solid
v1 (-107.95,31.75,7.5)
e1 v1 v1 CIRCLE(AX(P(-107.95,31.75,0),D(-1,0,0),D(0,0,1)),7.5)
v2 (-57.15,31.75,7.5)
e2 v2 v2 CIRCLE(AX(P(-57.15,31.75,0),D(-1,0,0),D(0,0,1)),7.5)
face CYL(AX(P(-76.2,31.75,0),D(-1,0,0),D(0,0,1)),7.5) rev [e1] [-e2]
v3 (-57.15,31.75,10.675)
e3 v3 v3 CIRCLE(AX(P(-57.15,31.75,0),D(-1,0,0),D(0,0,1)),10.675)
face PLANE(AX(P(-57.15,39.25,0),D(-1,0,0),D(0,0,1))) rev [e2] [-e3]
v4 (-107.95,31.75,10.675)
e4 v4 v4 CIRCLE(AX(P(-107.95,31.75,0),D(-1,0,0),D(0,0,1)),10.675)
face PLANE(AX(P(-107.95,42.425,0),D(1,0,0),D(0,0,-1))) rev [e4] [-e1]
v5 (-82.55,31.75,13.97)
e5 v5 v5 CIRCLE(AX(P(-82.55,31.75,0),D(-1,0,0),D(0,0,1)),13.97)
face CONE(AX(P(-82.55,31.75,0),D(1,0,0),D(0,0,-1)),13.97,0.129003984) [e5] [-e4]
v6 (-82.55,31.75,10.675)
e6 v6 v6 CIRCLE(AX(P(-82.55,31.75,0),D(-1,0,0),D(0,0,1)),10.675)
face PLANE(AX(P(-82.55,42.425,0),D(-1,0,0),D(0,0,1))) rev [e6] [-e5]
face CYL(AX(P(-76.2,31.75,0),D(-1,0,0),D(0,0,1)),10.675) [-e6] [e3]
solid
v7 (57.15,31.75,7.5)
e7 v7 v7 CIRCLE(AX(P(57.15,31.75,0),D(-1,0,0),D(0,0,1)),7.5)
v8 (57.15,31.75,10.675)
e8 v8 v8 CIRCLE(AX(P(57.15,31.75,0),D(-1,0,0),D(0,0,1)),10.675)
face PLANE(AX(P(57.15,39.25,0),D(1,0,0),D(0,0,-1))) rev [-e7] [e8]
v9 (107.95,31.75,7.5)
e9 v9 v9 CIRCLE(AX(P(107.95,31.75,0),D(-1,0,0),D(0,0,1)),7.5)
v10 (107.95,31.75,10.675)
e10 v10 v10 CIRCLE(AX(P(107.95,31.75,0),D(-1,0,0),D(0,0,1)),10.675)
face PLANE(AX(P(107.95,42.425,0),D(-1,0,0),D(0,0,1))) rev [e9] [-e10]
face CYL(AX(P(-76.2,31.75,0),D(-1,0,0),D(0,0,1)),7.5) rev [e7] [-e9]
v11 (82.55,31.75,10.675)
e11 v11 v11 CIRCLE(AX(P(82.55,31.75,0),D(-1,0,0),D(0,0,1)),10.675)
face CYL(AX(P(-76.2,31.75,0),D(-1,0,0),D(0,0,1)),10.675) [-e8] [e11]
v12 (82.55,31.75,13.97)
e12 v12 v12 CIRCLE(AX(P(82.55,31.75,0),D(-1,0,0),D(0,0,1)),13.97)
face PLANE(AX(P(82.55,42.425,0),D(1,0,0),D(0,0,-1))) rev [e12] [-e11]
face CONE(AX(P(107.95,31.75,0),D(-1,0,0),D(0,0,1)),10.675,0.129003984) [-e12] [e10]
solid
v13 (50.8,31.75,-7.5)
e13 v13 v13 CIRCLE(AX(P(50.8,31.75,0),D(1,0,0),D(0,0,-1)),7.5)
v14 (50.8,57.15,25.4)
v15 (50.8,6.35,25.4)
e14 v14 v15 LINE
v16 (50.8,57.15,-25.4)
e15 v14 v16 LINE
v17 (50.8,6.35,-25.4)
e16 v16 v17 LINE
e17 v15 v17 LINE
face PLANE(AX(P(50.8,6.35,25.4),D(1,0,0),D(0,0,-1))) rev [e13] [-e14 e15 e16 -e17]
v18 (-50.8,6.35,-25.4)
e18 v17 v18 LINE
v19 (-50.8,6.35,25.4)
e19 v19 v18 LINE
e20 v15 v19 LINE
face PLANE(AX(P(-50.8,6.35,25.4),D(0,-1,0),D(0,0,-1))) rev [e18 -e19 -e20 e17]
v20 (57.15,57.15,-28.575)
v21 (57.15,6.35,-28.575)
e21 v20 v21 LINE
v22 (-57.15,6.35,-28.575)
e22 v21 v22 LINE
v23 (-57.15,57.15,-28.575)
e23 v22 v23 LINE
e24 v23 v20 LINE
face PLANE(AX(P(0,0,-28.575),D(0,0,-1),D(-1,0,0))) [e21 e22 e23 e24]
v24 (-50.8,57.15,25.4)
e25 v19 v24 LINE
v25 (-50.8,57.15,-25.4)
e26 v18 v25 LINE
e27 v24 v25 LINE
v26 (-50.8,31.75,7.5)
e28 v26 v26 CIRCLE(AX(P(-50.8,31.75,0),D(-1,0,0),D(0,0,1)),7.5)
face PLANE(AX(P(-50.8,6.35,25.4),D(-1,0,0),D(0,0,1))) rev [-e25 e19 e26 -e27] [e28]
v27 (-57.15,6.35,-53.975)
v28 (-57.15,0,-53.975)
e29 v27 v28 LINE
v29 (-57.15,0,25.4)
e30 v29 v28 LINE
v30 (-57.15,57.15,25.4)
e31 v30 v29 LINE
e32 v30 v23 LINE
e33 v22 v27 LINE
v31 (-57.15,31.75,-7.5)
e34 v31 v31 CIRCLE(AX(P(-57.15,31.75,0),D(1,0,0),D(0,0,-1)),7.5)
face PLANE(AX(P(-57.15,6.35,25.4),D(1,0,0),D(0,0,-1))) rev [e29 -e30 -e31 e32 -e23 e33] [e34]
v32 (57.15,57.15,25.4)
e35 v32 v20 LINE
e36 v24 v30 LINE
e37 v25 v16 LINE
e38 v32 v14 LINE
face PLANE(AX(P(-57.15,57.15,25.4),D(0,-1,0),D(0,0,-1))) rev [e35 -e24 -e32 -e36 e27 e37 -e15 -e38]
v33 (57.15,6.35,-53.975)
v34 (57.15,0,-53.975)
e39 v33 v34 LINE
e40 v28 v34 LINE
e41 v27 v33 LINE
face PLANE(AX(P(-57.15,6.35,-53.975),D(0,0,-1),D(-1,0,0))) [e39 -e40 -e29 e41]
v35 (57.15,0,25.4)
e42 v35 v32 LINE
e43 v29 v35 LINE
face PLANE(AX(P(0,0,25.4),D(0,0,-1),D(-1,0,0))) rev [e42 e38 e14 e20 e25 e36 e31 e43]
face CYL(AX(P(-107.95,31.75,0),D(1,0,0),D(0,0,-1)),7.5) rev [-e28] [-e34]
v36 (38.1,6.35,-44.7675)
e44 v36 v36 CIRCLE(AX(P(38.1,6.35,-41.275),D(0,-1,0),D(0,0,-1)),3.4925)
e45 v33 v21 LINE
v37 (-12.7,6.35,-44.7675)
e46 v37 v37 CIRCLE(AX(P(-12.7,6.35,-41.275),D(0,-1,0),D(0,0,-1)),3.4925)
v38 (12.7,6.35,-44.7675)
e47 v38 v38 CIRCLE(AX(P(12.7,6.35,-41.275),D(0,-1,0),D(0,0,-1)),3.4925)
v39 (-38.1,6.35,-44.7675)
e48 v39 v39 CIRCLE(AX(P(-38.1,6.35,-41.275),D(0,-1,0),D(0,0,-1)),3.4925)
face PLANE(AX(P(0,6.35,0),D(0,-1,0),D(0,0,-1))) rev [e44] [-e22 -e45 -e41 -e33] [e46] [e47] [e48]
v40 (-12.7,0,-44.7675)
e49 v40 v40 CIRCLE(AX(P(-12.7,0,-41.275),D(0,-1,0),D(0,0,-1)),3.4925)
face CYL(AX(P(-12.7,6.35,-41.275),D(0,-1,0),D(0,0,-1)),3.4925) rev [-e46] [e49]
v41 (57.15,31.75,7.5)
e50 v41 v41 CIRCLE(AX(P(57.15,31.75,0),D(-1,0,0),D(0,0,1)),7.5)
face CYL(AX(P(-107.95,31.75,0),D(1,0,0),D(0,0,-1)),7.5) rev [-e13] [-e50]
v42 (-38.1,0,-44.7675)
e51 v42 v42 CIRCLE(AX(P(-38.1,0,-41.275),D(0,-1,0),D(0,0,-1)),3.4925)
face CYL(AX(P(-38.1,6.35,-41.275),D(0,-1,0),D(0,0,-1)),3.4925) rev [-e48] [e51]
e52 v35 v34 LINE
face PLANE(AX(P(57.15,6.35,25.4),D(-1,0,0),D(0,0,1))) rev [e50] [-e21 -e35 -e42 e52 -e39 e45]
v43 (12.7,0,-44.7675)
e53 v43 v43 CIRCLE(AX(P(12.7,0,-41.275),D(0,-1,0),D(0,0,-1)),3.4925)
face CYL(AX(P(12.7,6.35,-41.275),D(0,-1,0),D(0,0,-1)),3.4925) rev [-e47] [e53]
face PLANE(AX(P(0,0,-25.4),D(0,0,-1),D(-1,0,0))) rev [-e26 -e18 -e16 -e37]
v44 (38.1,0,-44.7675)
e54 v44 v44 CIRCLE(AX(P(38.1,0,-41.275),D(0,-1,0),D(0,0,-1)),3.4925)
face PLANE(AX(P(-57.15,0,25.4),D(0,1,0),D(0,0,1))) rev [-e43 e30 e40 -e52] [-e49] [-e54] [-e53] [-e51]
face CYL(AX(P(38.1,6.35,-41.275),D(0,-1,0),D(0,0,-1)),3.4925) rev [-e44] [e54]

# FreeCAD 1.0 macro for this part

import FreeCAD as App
import Part
import Sketcher

V = App.Vector
Q = App.Units.Quantity

doc = App.newDocument("Part")
body = doc.addObject("PartDesign::Body", "Body")

sketch1 = body.newObject("Sketcher::SketchObject", "Sketch")
sketch1.AttachmentSupport = (doc.getObject("XY_Plane"), [""])
sketch1.MapMode = "FlatFace"
sketch1.addGeometry(Part.LineSegment(V(-57.15, 0, 0), V(57.15, 0, 0)), False)
sketch1.addGeometry(Part.LineSegment(V(57.15, 0, 0), V(57.15, 57.15, 0)), False)
sketch1.addGeometry(Part.LineSegment(V(57.15, 57.15, 0), V(50.8, 57.15, 0)), False)
sketch1.addGeometry(Part.LineSegment(V(50.8, 57.15, 0), V(50.8, 6.35, 0)), False)
sketch1.addGeometry(Part.LineSegment(V(50.8, 6.35, 0), V(-50.8, 6.35, 0)), False)
sketch1.addGeometry(Part.LineSegment(V(-50.8, 6.35, 0), V(-50.8, 57.15, 0)), False)
sketch1.addGeometry(Part.LineSegment(V(-50.8, 57.15, 0), V(-57.15, 57.15, 0)), False)
sketch1.addGeometry(Part.LineSegment(V(-57.15, 57.15, 0), V(-57.15, 0, 0)), False)
sketch1.addConstraint(Sketcher.Constraint("Coincident", 0, 2, 1, 1))
sketch1.addConstraint(Sketcher.Constraint("Coincident", 1, 2, 2, 1))
sketch1.addConstraint(Sketcher.Constraint("Coincident", 2, 2, 3, 1))
sketch1.addConstraint(Sketcher.Constraint("Coincident", 3, 2, 4, 1))
sketch1.addConstraint(Sketcher.Constraint("Coincident", 4, 2, 5, 1))
sketch1.addConstraint(Sketcher.Constraint("Coincident", 5, 2, 6, 1))
sketch1.addConstraint(Sketcher.Constraint("Coincident", 6, 2, 7, 1))
sketch1.addConstraint(Sketcher.Constraint("Coincident", 7, 2, 0, 1))
sketch1.addConstraint(Sketcher.Constraint("Horizontal", 0))
sketch1.addConstraint(Sketcher.Constraint("Vertical", 1))
sketch1.addConstraint(Sketcher.Constraint("Horizontal", 2))
sketch1.addConstraint(Sketcher.Constraint("Vertical", 3))
sketch1.addConstraint(Sketcher.Constraint("Horizontal", 4))
sketch1.addConstraint(Sketcher.Constraint("Vertical", 5))
sketch1.addConstraint(Sketcher.Constraint("Horizontal", 6))
sketch1.addConstraint(Sketcher.Constraint("Vertical", 7))
sketch1.addConstraint(Sketcher.Constraint("Symmetric", 0, 2, 7, 2, -1, 1))
sketch1.addConstraint(Sketcher.Constraint("Symmetric", 2, 2, 5, 2, -2))
sketch1.addConstraint(Sketcher.Constraint("DistanceX", 4, 2, 4, 1, Q("4 in")))
sketch1.addConstraint(Sketcher.Constraint("DistanceY", 3, 2, 3, 1, Q("2 in")))
sketch1.addConstraint(Sketcher.Constraint("DistanceX", 0, 1, 0, 2, Q("4.5 in")))
sketch1.addConstraint(Sketcher.Constraint("DistanceY", 1, 1, 1, 2, Q("2.25 in")))
pad1 = body.newObject("PartDesign::Pad", "Pad")
pad1.Profile = sketch1
pad1.Length = Q("2 in")
pad1.Midplane = True

sketch2 = body.newObject("Sketcher::SketchObject", "Sketch001")
sketch2.AttachmentSupport = (doc.getObject("XY_Plane"), [""])
sketch2.MapMode = "FlatFace"
sketch2.AttachmentOffset = App.Placement(V(0, 0, -1 * 25.4), App.Rotation())
sketch2.addGeometry(Part.LineSegment(V(57.15, 57.15, 0), V(57.15, 0, 0)), False)
sketch2.addGeometry(Part.LineSegment(V(57.15, 0, 0), V(-57.15, 0, 0)), False)
sketch2.addGeometry(Part.LineSegment(V(-57.15, 0, 0), V(-57.15, 57.15, 0)), False)
sketch2.addGeometry(Part.LineSegment(V(-57.15, 57.15, 0), V(57.15, 57.15, 0)), False)
sketch2.addConstraint(Sketcher.Constraint("Coincident", 0, 2, 1, 1))
sketch2.addConstraint(Sketcher.Constraint("Coincident", 1, 2, 2, 1))
sketch2.addConstraint(Sketcher.Constraint("Coincident", 2, 2, 3, 1))
sketch2.addConstraint(Sketcher.Constraint("Coincident", 3, 2, 0, 1))
sketch2.addConstraint(Sketcher.Constraint("Vertical", 0))
sketch2.addConstraint(Sketcher.Constraint("Horizontal", 1))
sketch2.addConstraint(Sketcher.Constraint("Vertical", 2))
sketch2.addConstraint(Sketcher.Constraint("Horizontal", 3))
sketch2.addConstraint(Sketcher.Constraint("Symmetric", 0, 2, 1, 2, -1, 1))
sketch2.addConstraint(Sketcher.Constraint("DistanceX", 1, 2, 1, 1, Q("4.5 in")))
sketch2.addConstraint(Sketcher.Constraint("DistanceY", 0, 2, 0, 1, Q("2.25 in")))
pad2 = body.newObject("PartDesign::Pad", "Pad001")
pad2.Profile = sketch2
pad2.Length = Q("0.125 in")
pad2.Reversed = True

sketch3 = body.newObject("Sketcher::SketchObject", "Sketch002")
sketch3.AttachmentSupport = (doc.getObject("YZ_Plane"), [""])
sketch3.MapMode = "FlatFace"
sketch3.addGeometry(Part.Circle(V(31.75, 0, 0), V(0, 0, 1), 7.5), False)
sketch3.addConstraint(Sketcher.Constraint("PointOnObject", 0, 3, -1))
sketch3.addConstraint(Sketcher.Constraint("Diameter", 0, Q("15 mm")))
sketch3.addConstraint(Sketcher.Constraint("DistanceX", -1, 1, 0, 3, Q("1.25 in")))
pocket1 = body.newObject("PartDesign::Pocket", "Pocket")
pocket1.Profile = sketch3
pocket1.Type = "ThroughAll"
pocket1.Midplane = True

sketch4 = body.newObject("Sketcher::SketchObject", "Sketch003")
sketch4.AttachmentSupport = (doc.getObject("XZ_Plane"), [""])
sketch4.MapMode = "FlatFace"
sketch4.addGeometry(Part.LineSegment(V(-57.15, -28.575, 0), V(-57.15, -53.975, 0)), False)
sketch4.addGeometry(Part.LineSegment(V(-57.15, -53.975, 0), V(57.15, -53.975, 0)), False)
sketch4.addGeometry(Part.LineSegment(V(57.15, -53.975, 0), V(57.15, -28.575, 0)), False)
sketch4.addGeometry(Part.LineSegment(V(57.15, -28.575, 0), V(-57.15, -28.575, 0)), False)
sketch4.addGeometry(Part.Circle(V(-38.1, -41.275, 0), V(0, 0, 1), 3.4925), False)
sketch4.addGeometry(Part.Circle(V(-12.7, -41.275, 0), V(0, 0, 1), 3.4925), False)
sketch4.addGeometry(Part.Circle(V(12.7, -41.275, 0), V(0, 0, 1), 3.4925), False)
sketch4.addGeometry(Part.Circle(V(38.1, -41.275, 0), V(0, 0, 1), 3.4925), False)
sketch4.addConstraint(Sketcher.Constraint("Coincident", 0, 2, 1, 1))
sketch4.addConstraint(Sketcher.Constraint("Coincident", 1, 2, 2, 1))
sketch4.addConstraint(Sketcher.Constraint("Coincident", 2, 2, 3, 1))
sketch4.addConstraint(Sketcher.Constraint("Coincident", 3, 2, 0, 1))
sketch4.addConstraint(Sketcher.Constraint("Vertical", 0))
sketch4.addConstraint(Sketcher.Constraint("Horizontal", 1))
sketch4.addConstraint(Sketcher.Constraint("Vertical", 2))
sketch4.addConstraint(Sketcher.Constraint("Horizontal", 3))
sketch4.addConstraint(Sketcher.Constraint("Equal", 4, 5))
sketch4.addConstraint(Sketcher.Constraint("Equal", 5, 6))
sketch4.addConstraint(Sketcher.Constraint("Equal", 6, 7))
sketch4.addConstraint(Sketcher.Constraint("Symmetric", 5, 3, 6, 3, -2))
sketch4.addConstraint(Sketcher.Constraint("Symmetric", 4, 3, 7, 3, -2))
sketch4.addConstraint(Sketcher.Constraint("Horizontal", 4, 3, 5, 3))
sketch4.addConstraint(Sketcher.Constraint("DistanceY", 0, 2, 0, 1, Q("1 in")))
sketch4.addConstraint(Sketcher.Constraint("Diameter", 4, Q("0.275 in")))
sketch4.addConstraint(Sketcher.Constraint("DistanceX", 1, 1, 1, 2, Q("4.5 in")))
sketch4.addConstraint(Sketcher.Constraint("DistanceX", 4, 3, 5, 3, Q("1 in")))
sketch4.addConstraint(Sketcher.Constraint("DistanceX", 5, 3, 6, 3, Q("1 in")))
sketch4.addConstraint(Sketcher.Constraint("DistanceY", 0, 2, 4, 3, Q("0.5 in")))
sketch4.addConstraint(Sketcher.Constraint("DistanceX", 0, 2, -1, 1, Q("2.25 in")))
sketch4.addConstraint(Sketcher.Constraint("DistanceY", 4, 3, -1, 1, Q("1.625 in")))
pad3 = body.newObject("PartDesign::Pad", "Pad002")
pad3.Profile = sketch4
pad3.Length = Q("0.25 in")
pad3.Reversed = True
body2 = doc.addObject("PartDesign::Body", "Body001")
body2.AllowCompound = True

sketch5 = body2.newObject("Sketcher::SketchObject", "Sketch004")
sketch5.AttachmentSupport = (doc.getObject("XY_Plane001"), [""])
sketch5.MapMode = "FlatFace"
sketch5.addGeometry(Part.LineSegment(V(57.15, 42.425, 0), V(57.15, 39.25, 0)), False)
sketch5.addGeometry(Part.LineSegment(V(57.15, 39.25, 0), V(107.95, 39.25, 0)), False)
sketch5.addGeometry(Part.LineSegment(V(107.95, 39.25, 0), V(107.95, 42.425, 0)), False)
sketch5.addGeometry(Part.LineSegment(V(107.95, 42.425, 0), V(82.55, 45.72, 0)), False)
sketch5.addGeometry(Part.LineSegment(V(82.55, 45.72, 0), V(82.55, 42.425, 0)), False)
sketch5.addGeometry(Part.LineSegment(V(82.55, 42.425, 0), V(57.15, 42.425, 0)), False)
sketch5.addGeometry(Part.LineSegment(V(-57.15, 42.425, 0), V(-82.55, 42.425, 0)), False)
sketch5.addGeometry(Part.LineSegment(V(-82.55, 42.425, 0), V(-82.55, 45.72, 0)), False)
sketch5.addGeometry(Part.LineSegment(V(-82.55, 45.72, 0), V(-107.95, 42.425, 0)), False)
sketch5.addGeometry(Part.LineSegment(V(-107.95, 42.425, 0), V(-107.95, 39.25, 0)), False)
sketch5.addGeometry(Part.LineSegment(V(-107.95, 39.25, 0), V(-57.15, 39.25, 0)), False)
sketch5.addGeometry(Part.LineSegment(V(-57.15, 39.25, 0), V(-57.15, 42.425, 0)), False)
sketch5.addGeometry(Part.LineSegment(V(-107.95, 31.75, 0), V(107.95, 31.75, 0)), True)
sketch5.addConstraint(Sketcher.Constraint("Coincident", 0, 2, 1, 1))
sketch5.addConstraint(Sketcher.Constraint("Coincident", 1, 2, 2, 1))
sketch5.addConstraint(Sketcher.Constraint("Coincident", 2, 2, 3, 1))
sketch5.addConstraint(Sketcher.Constraint("Coincident", 3, 2, 4, 1))
sketch5.addConstraint(Sketcher.Constraint("Coincident", 4, 2, 5, 1))
sketch5.addConstraint(Sketcher.Constraint("Coincident", 5, 2, 0, 1))
sketch5.addConstraint(Sketcher.Constraint("Coincident", 6, 2, 7, 1))
sketch5.addConstraint(Sketcher.Constraint("Coincident", 7, 2, 8, 1))
sketch5.addConstraint(Sketcher.Constraint("Coincident", 8, 2, 9, 1))
sketch5.addConstraint(Sketcher.Constraint("Coincident", 9, 2, 10, 1))
sketch5.addConstraint(Sketcher.Constraint("Coincident", 10, 2, 11, 1))
sketch5.addConstraint(Sketcher.Constraint("Coincident", 11, 2, 6, 1))
sketch5.addConstraint(Sketcher.Constraint("Vertical", 0))
sketch5.addConstraint(Sketcher.Constraint("Horizontal", 1))
sketch5.addConstraint(Sketcher.Constraint("Vertical", 2))
sketch5.addConstraint(Sketcher.Constraint("Vertical", 4))
sketch5.addConstraint(Sketcher.Constraint("Horizontal", 5))
sketch5.addConstraint(Sketcher.Constraint("Horizontal", 6))
sketch5.addConstraint(Sketcher.Constraint("Vertical", 7))
sketch5.addConstraint(Sketcher.Constraint("Vertical", 9))
sketch5.addConstraint(Sketcher.Constraint("Horizontal", 10))
sketch5.addConstraint(Sketcher.Constraint("Vertical", 11))
sketch5.addConstraint(Sketcher.Constraint("Horizontal", 12))
sketch5.addConstraint(Sketcher.Constraint("Symmetric", 4, 2, 6, 2, -2))
sketch5.addConstraint(Sketcher.Constraint("Symmetric", 2, 2, 8, 2, -2))
sketch5.addConstraint(Sketcher.Constraint("Symmetric", 0, 2, 10, 2, -2))
sketch5.addConstraint(Sketcher.Constraint("Horizontal", 2, 2, 4, 2))
sketch5.addConstraint(Sketcher.Constraint("Horizontal", 3, 2, 7, 2))
sketch5.addConstraint(Sketcher.Constraint("Vertical", 9, 2, 12, 1))
sketch5.addConstraint(Sketcher.Constraint("Vertical", 2, 2, 12, 2))
sketch5.addConstraint(Sketcher.Constraint("DistanceX", 1, 1, 1, 2, Q("2 in")))
sketch5.addConstraint(Sketcher.Constraint("DistanceX", 5, 2, 5, 1, Q("1 in")))
sketch5.addConstraint(Sketcher.Constraint("DistanceX", 12, 1, 12, 2, Q("8.5 in")))
sketch5.addConstraint(Sketcher.Constraint("DistanceY", -1, 1, 3, 2, Q("1.8 in")))
sketch5.addConstraint(Sketcher.Constraint("DistanceY", 0, 2, 0, 1, Q("0.125 in")))
sketch5.addConstraint(Sketcher.Constraint("DistanceY", -1, 1, 12, 1, Q("1.25 in")))
sketch5.addConstraint(Sketcher.Constraint("DistanceY", 4, 2, 4, 1, Q("3.295 mm")))
revolution = body2.newObject("PartDesign::Revolution", "Revolution")
revolution.Profile = sketch5
revolution.ReferenceAxis = (sketch5, ["Axis0"])
revolution.Angle = 360

doc.recompute()
